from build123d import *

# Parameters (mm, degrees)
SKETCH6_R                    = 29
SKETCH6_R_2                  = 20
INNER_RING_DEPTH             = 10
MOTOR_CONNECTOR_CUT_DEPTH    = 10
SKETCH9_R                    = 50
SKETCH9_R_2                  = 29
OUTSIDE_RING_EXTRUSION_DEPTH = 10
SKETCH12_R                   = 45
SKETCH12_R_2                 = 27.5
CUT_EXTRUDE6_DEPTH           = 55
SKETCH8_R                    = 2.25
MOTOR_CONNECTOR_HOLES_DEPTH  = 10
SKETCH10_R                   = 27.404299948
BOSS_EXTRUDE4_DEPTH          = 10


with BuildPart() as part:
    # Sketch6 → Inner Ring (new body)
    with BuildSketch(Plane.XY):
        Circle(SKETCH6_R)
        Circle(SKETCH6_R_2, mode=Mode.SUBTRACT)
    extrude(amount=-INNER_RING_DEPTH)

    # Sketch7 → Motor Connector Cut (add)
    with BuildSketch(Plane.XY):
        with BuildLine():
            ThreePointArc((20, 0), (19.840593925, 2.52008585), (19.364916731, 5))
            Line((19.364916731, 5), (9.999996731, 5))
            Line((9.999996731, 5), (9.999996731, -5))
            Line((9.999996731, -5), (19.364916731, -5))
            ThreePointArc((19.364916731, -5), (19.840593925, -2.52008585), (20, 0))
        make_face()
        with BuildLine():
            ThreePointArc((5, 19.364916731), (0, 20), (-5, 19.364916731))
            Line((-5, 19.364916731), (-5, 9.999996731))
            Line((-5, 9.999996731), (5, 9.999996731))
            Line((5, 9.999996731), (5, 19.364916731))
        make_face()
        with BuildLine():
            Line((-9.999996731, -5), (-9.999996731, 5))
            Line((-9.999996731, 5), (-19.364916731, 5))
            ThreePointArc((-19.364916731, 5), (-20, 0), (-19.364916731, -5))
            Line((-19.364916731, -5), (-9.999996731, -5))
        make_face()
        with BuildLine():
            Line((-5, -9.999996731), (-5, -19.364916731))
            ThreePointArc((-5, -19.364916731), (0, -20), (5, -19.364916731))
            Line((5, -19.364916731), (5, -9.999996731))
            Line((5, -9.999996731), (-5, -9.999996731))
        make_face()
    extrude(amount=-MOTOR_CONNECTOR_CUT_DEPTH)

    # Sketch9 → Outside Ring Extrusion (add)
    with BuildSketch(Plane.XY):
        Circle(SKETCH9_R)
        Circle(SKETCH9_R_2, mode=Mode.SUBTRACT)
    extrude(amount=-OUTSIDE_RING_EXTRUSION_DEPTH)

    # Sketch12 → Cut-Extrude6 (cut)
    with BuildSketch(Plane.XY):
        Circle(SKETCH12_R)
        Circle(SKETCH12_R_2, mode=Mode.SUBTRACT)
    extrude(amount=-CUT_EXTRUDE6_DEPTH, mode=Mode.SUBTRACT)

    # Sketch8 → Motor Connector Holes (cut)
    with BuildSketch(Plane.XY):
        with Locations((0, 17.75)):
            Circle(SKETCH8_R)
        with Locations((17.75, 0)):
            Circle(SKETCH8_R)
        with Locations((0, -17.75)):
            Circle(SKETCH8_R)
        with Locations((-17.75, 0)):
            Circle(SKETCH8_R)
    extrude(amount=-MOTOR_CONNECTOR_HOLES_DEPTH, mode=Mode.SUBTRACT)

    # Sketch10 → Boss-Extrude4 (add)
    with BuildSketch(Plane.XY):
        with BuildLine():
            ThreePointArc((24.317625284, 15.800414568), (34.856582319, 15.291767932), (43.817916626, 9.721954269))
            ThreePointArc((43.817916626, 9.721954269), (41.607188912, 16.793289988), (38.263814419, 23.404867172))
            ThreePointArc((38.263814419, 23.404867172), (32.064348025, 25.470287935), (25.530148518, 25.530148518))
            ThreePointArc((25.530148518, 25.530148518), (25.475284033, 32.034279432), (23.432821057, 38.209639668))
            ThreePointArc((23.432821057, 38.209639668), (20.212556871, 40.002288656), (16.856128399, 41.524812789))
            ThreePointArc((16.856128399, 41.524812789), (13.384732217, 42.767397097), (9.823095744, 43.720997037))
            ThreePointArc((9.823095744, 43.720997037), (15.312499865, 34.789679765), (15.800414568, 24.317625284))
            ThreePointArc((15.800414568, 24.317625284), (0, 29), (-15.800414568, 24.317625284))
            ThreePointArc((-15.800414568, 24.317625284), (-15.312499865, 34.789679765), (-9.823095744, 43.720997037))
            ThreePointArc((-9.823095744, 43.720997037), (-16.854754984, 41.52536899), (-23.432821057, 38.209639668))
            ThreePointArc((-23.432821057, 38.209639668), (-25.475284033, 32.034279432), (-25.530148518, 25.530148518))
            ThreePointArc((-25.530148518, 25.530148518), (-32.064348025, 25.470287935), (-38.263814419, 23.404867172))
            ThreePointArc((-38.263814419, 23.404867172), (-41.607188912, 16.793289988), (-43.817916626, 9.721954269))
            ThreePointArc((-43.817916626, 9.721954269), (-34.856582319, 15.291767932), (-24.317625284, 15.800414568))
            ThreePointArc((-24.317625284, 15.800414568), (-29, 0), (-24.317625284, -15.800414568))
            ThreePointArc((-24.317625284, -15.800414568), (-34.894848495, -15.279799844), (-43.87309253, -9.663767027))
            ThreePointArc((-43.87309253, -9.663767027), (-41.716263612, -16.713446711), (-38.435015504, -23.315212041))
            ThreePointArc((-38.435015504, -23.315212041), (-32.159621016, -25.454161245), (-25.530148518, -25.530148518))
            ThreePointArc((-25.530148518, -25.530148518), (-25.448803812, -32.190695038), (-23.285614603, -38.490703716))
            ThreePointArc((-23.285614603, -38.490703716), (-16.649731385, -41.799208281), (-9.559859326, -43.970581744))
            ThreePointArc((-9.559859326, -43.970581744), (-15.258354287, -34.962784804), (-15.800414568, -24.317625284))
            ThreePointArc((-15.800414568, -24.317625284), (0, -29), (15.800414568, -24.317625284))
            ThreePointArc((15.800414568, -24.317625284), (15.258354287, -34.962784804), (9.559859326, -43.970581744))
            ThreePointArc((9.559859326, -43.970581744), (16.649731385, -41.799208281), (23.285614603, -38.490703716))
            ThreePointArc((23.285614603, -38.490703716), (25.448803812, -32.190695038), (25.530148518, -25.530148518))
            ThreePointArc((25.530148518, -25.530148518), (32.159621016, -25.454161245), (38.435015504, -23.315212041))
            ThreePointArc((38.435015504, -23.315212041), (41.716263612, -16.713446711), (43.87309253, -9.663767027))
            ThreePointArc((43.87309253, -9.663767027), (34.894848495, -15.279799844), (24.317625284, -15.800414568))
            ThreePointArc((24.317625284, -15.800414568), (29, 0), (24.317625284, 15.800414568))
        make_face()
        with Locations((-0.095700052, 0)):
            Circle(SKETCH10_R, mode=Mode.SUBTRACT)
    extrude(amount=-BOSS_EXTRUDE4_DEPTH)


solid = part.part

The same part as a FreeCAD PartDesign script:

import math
import FreeCAD as App
import Part
import Sketcher

V = App.Vector

doc = App.newDocument("Part")
body = doc.addObject("PartDesign::Body", "Body")
body.AllowCompound = True

# Sketch on XY plane
sketch1 = doc.addObject("Sketcher::SketchObject", "Sketch")
body.addObject(sketch1)
sketch1.AttachmentSupport = (doc.XY_Plane, [""])
sketch1.MapMode = "FlatFace"
sketch1.addGeometry([
    Part.Circle(V(0, 0, 0), V(0, 0, 1), 29),
    Part.Circle(V(0, 0, 0), V(0, 0, 1), 20),
], False)
sketch1.addConstraint([
    Sketcher.Constraint("Coincident", 0, 3, -1, 1),
    Sketcher.Constraint("Coincident", 1, 3, -1, 1),
    Sketcher.Constraint("Diameter", 0, 58.0),
    Sketcher.Constraint("Diameter", 1, 40.0),
])
pad1 = doc.addObject("PartDesign::Pad", "Pad")
body.addObject(pad1)
pad1.Profile = sketch1
pad1.Length = 10
pad1.Reversed = True

# Sketch on XY plane
sketch2 = doc.addObject("Sketcher::SketchObject", "Sketch001")
body.addObject(sketch2)
sketch2.AttachmentSupport = (doc.XY_Plane, [""])
sketch2.MapMode = "FlatFace"
sketch2.addGeometry([
    Part.ArcOfCircle(Part.Circle(V(0, 0, 0), V(0, 0, 1), 20), math.radians(0), math.radians(14.48)),  # 0
    Part.LineSegment(V(19, 5, 0), V(10, 5, 0)),  # 1
    Part.LineSegment(V(10, 5, 0), V(10, -5, 0)),  # 2
    Part.LineSegment(V(10, -5, 0), V(19, -5, 0)),  # 3
    Part.ArcOfCircle(Part.Circle(V(0, 0, 0), V(0, 0, 1), 20), math.radians(-14.48), math.radians(0)),  # 4
    Part.ArcOfCircle(Part.Circle(V(0, 0, 0), V(0, 0, 1), 20), math.radians(76), math.radians(104)),  # 5
    Part.LineSegment(V(-5, 19, 0), V(-5, 10, 0)),  # 6
    Part.LineSegment(V(-5, 10, 0), V(5, 10, 0)),  # 7
    Part.LineSegment(V(5, 10, 0), V(5, 19, 0)),  # 8
    Part.LineSegment(V(-10, -5, 0), V(-10, 5, 0)),  # 9
    Part.LineSegment(V(-10, 5, 0), V(-19, 5, 0)),  # 10
    Part.ArcOfCircle(Part.Circle(V(0, 0, 0), V(0, 0, 1), 20), math.radians(166), math.radians(194)),  # 11
    Part.LineSegment(V(-19, -5, 0), V(-10, -5, 0)),  # 12
    Part.LineSegment(V(-5, -10, 0), V(-5, -19, 0)),  # 13
    Part.ArcOfCircle(Part.Circle(V(0, 0, 0), V(0, 0, 1), 20), math.radians(-104), math.radians(-76)),  # 14
    Part.LineSegment(V(5, -19, 0), V(5, -10, 0)),  # 15
    Part.LineSegment(V(5, -10, 0), V(-5, -10, 0)),  # 16
], False)
sketch2.addConstraint([
    Sketcher.Constraint("Coincident", 0, 2, 1, 1),
    Sketcher.Constraint("Coincident", 1, 2, 2, 1),
    Sketcher.Constraint("Coincident", 2, 2, 3, 1),
    Sketcher.Constraint("Coincident", 3, 2, 4, 1),
    Sketcher.Constraint("Tangent", 4, 2, 0, 1),
    Sketcher.Constraint("Coincident", 5, 2, 6, 1),
    Sketcher.Constraint("Coincident", 6, 2, 7, 1),
    Sketcher.Constraint("Coincident", 7, 2, 8, 1),
    Sketcher.Constraint("Coincident", 8, 2, 5, 1),
    Sketcher.Constraint("Coincident", 9, 2, 10, 1),
    Sketcher.Constraint("Coincident", 10, 2, 11, 1),
    Sketcher.Constraint("Coincident", 11, 2, 12, 1),
    Sketcher.Constraint("Coincident", 12, 2, 9, 1),
    Sketcher.Constraint("Coincident", 13, 2, 14, 1),
    Sketcher.Constraint("Coincident", 14, 2, 15, 1),
    Sketcher.Constraint("Coincident", 15, 2, 16, 1),
    Sketcher.Constraint("Coincident", 16, 2, 13, 1),
    Sketcher.Constraint("Horizontal", 1),
    Sketcher.Constraint("Vertical", 2),
    Sketcher.Constraint("Horizontal", 3),
    Sketcher.Constraint("Vertical", 6),
    Sketcher.Constraint("Horizontal", 7),
    Sketcher.Constraint("Vertical", 8),
    Sketcher.Constraint("Vertical", 9),
    Sketcher.Constraint("Horizontal", 10),
    Sketcher.Constraint("Horizontal", 12),
    Sketcher.Constraint("Vertical", 13),
    Sketcher.Constraint("Vertical", 15),
    Sketcher.Constraint("Horizontal", 16),
    Sketcher.Constraint("Coincident", 0, 3, -1, 1),
    Sketcher.Constraint("Coincident", 5, 3, -1, 1),
    Sketcher.Constraint("Coincident", 11, 3, -1, 1),
    Sketcher.Constraint("Coincident", 14, 3, -1, 1),
    Sketcher.Constraint("Equal", 0, 4),
    Sketcher.Constraint("Equal", 4, 5),
    Sketcher.Constraint("Equal", 5, 11),
    Sketcher.Constraint("Equal", 11, 14),
    Sketcher.Constraint("Symmetric", 2, 2, 9, 2, -1, 1),
    Sketcher.Constraint("Symmetric", 6, 2, 15, 2, -1, 1),
    Sketcher.Constraint("PointOnObject", 4, 2, -1),
    Sketcher.Constraint("Horizontal", 5, 2, 8, 2),
    Sketcher.Constraint("Horizontal", 1, 2, 9, 2),
    Sketcher.Constraint("Horizontal", 3, 2, 11, 2),
    Sketcher.Constraint("Horizontal", 13, 2, 14, 2),
    Sketcher.Constraint("Equal", 16, 2),
    Sketcher.Constraint("Equal", 12, 6),
    Sketcher.Constraint("Radius", 0, 20.0),
    Sketcher.Constraint("DistanceX", 7, 1, 7, 2, 10.0),
    Sketcher.Constraint("DistanceX", 1, 2, 1, 1, 9.36492),
])
pad2 = doc.addObject("PartDesign::Pad", "Pad001")
body.addObject(pad2)
pad2.Profile = sketch2
pad2.Length = 10
pad2.Reversed = True

# Sketch on XY plane
sketch3 = doc.addObject("Sketcher::SketchObject", "Sketch002")
body.addObject(sketch3)
sketch3.AttachmentSupport = (doc.XY_Plane, [""])
sketch3.MapMode = "FlatFace"
sketch3.addGeometry([
    Part.Circle(V(0, 0, 0), V(0, 0, 1), 50),
    Part.Circle(V(0, 0, 0), V(0, 0, 1), 29),
], False)
sketch3.addConstraint([
    Sketcher.Constraint("Coincident", 0, 3, -1, 1),
    Sketcher.Constraint("Coincident", 1, 3, -1, 1),
    Sketcher.Constraint("Diameter", 0, 100.0),
    Sketcher.Constraint("Diameter", 1, 58.0),
])
pad3 = doc.addObject("PartDesign::Pad", "Pad002")
body.addObject(pad3)
pad3.Profile = sketch3
pad3.Length = 10
pad3.Reversed = True

# Sketch on XY plane
sketch4 = doc.addObject("Sketcher::SketchObject", "Sketch003")
body.addObject(sketch4)
sketch4.AttachmentSupport = (doc.XY_Plane, [""])
sketch4.MapMode = "FlatFace"
sketch4.addGeometry([
    Part.Circle(V(0, 0, 0), V(0, 0, 1), 45),
    Part.Circle(V(0, 0, 0), V(0, 0, 1), 28),
], False)
sketch4.addConstraint([
    Sketcher.Constraint("Coincident", 0, 3, -1, 1),
    Sketcher.Constraint("Coincident", 1, 3, -1, 1),
    Sketcher.Constraint("Diameter", 0, 90.0),
    Sketcher.Constraint("Diameter", 1, 55.0),
])
pocket1 = doc.addObject("PartDesign::Pocket", "Pocket")
body.addObject(pocket1)
pocket1.Profile = sketch4
pocket1.Length = 55

# Sketch on XY plane
sketch5 = doc.addObject("Sketcher::SketchObject", "Sketch004")
body.addObject(sketch5)
sketch5.AttachmentSupport = (doc.XY_Plane, [""])
sketch5.MapMode = "FlatFace"
sketch5.addGeometry([
    Part.Circle(V(0, 17.8, 0), V(0, 0, 1), 2.2),
    Part.Circle(V(17.8, 0, 0), V(0, 0, 1), 2.2),
    Part.Circle(V(0, -17.8, 0), V(0, 0, 1), 2.2),
    Part.Circle(V(-17.8, 0, 0), V(0, 0, 1), 2.2),
], False)
sketch5.addConstraint([
    Sketcher.Constraint("Equal", 0, 1),
    Sketcher.Constraint("Equal", 1, 2),
    Sketcher.Constraint("Equal", 2, 3),
    Sketcher.Constraint("Symmetric", 0, 3, 2, 3, -1, 1),
    Sketcher.Constraint("Symmetric", 1, 3, 3, 3, -1, 1),
    Sketcher.Constraint("PointOnObject", 0, 3, -2),
    Sketcher.Constraint("PointOnObject", 1, 3, -1),
    Sketcher.Constraint("Diameter", 0, 4.5),
    Sketcher.Constraint("DistanceY", 2, 3, 0, 3, 35.5),
    Sketcher.Constraint("DistanceX", 3, 3, 1, 3, 35.5),
])
pocket2 = doc.addObject("PartDesign::Pocket", "Pocket001")
body.addObject(pocket2)
pocket2.Profile = sketch5
pocket2.Length = 10

# Sketch on XY plane
sketch6 = doc.addObject("Sketcher::SketchObject", "Sketch005")
body.addObject(sketch6)
sketch6.AttachmentSupport = (doc.XY_Plane, [""])
sketch6.MapMode = "FlatFace"
sketch6.addGeometry([
    Part.ArcOfCircle(Part.Circle(V(29, -5, 0), V(0, 0, 1), 21), math.radians(44), math.radians(102)),  # 0
    Part.ArcOfCircle(Part.Circle(V(0, 0, 0), V(0, 0, 1), 45), math.radians(12.63), math.radians(31.56)),  # 1
    Part.ArcOfCircle(Part.Circle(V(29, 5, 0), V(0, 0, 1), 21), math.radians(63), math.radians(98)),  # 2
    Part.ArcOfCircle(Part.Circle(V(5, 29, 0), V(0, 0, 1), 21), math.radians(-8), math.radians(27)),  # 3
    Part.ArcOfCircle(Part.Circle(V(0, 0, 0), V(0, 0, 1), 45), math.radians(58.54), math.radians(67.95)),  # 4
    Part.ArcOfCircle(Part.Circle(V(0, 0, 0), V(0, 0, 1), 45), math.radians(67.95), math.radians(77.36)),  # 5
    Part.ArcOfCircle(Part.Circle(V(-5, 29, 0), V(0, 0, 1), 21), math.radians(-12), math.radians(46)),  # 6
    Part.ArcOfCircle(Part.Circle(V(0, 0, 0), V(0, 0, 1), 29), math.radians(57), math.radians(123)),  # 7
    Part.ArcOfCircle(Part.Circle(V(5, 29, 0), V(0, 0, 1), 21), math.radians(134), math.radians(192)),  # 8
    Part.ArcOfCircle(Part.Circle(V(0, 0, 0), V(0, 0, 1), 45), math.radians(102.64), math.radians(121.46)),  # 9
    Part.ArcOfCircle(Part.Circle(V(-5, 29, 0), V(0, 0, 1), 21), math.radians(153), math.radians(188)),  # 10
    Part.ArcOfCircle(Part.Circle(V(-29, 5, 0), V(0, 0, 1), 21), math.radians(82), math.radians(117)),  # 11
    Part.ArcOfCircle(Part.Circle(V(0, 0, 0), V(0, 0, 1), 45), math.radians(148.44), math.radians(167.37)),  # 12
    Part.ArcOfCircle(Part.Circle(V(-29, -5, 0), V(0, 0, 1), 21), math.radians(78), math.radians(136)),  # 13
    Part.ArcOfCircle(Part.Circle(V(0, 0, 0), V(0, 0, 1), 29), math.radians(147), math.radians(213)),  # 14
    Part.ArcOfCircle(Part.Circle(V(-29, 5, 0), V(0, 0, 1), 21), math.radians(-137), math.radians(-78)),  # 15
    Part.ArcOfCircle(Part.Circle(V(0, 0, 0), V(0, 0, 1), 45), math.radians(-167.7), math.radians(-148.86)),  # 16
    Part.ArcOfCircle(Part.Circle(V(-29, -5, 0), V(0, 0, 1), 21), math.radians(-118), math.radians(-82)),  # 17
    Part.ArcOfCircle(Part.Circle(V(-5, -29, 0), V(0, 0, 1), 21), math.radians(172), math.radians(208)),  # 18
    Part.ArcOfCircle(Part.Circle(V(0, 0, 0), V(0, 0, 1), 45), math.radians(-121.24), math.radians(-102.29)),  # 19
    Part.ArcOfCircle(Part.Circle(V(5, -29, 0), V(0, 0, 1), 21), math.radians(168), math.radians(227)),  # 20
    Part.ArcOfCircle(Part.Circle(V(0, 0, 0), V(0, 0, 1), 29), math.radians(-123), math.radians(-57)),  # 21
    Part.ArcOfCircle(Part.Circle(V(-5, -29, 0), V(0, 0, 1), 21), math.radians(-47), math.radians(12)),  # 22
    Part.ArcOfCircle(Part.Circle(V(0, 0, 0), V(0, 0, 1), 45), math.radians(-77.71), math.radians(-58.76)),  # 23
    Part.ArcOfCircle(Part.Circle(V(5, -29, 0), V(0, 0, 1), 21), math.radians(-28), math.radians(8)),  # 24
    Part.ArcOfCircle(Part.Circle(V(29, -5, 0), V(0, 0, 1), 21), math.radians(-98), math.radians(-62)),  # 25
    Part.ArcOfCircle(Part.Circle(V(0, 0, 0), V(0, 0, 1), 45), math.radians(-31.14), math.radians(-12.3)),  # 26
    Part.ArcOfCircle(Part.Circle(V(29, 5, 0), V(0, 0, 1), 21), math.radians(-102), math.radians(-43)),  # 27
    Part.ArcOfCircle(Part.Circle(V(0, 0, 0), V(0, 0, 1), 29), math.radians(-33), math.radians(33)),  # 28
    Part.Circle(V(0, 0, 0), V(0, 0, 1), 27),  # 29
], False)
sketch6.addConstraint([
    Sketcher.Constraint("Coincident", 0, 1, 1, 1),
    Sketcher.Constraint("Coincident", 1, 2, 2, 1),
    Sketcher.Constraint("Coincident", 2, 2, 3, 1),
    Sketcher.Constraint("Coincident", 3, 2, 4, 1),
    Sketcher.Constraint("Tangent", 4, 2, 5, 1),
    Sketcher.Constraint("Coincident", 5, 2, 6, 2),
    Sketcher.Constraint("Coincident", 6, 1, 7, 1),
    Sketcher.Constraint("Coincident", 7, 2, 8, 2),
    Sketcher.Constraint("Coincident", 8, 1, 9, 1),
    Sketcher.Constraint("Coincident", 9, 2, 10, 1),
    Sketcher.Constraint("Coincident", 10, 2, 11, 1),
    Sketcher.Constraint("Coincident", 11, 2, 12, 1),
    Sketcher.Constraint("Coincident", 12, 2, 13, 2),
    Sketcher.Constraint("Coincident", 13, 1, 14, 1),
    Sketcher.Constraint("Coincident", 14, 2, 15, 2),
    Sketcher.Constraint("Coincident", 15, 1, 16, 1),
    Sketcher.Constraint("Coincident", 16, 2, 17, 1),
    Sketcher.Constraint("Coincident", 17, 2, 18, 1),
    Sketcher.Constraint("Coincident", 18, 2, 19, 1),
    Sketcher.Constraint("Coincident", 19, 2, 20, 2),
    Sketcher.Constraint("Coincident", 20, 1, 21, 1),
    Sketcher.Constraint("Coincident", 21, 2, 22, 2),
    Sketcher.Constraint("Coincident", 22, 1, 23, 1),
    Sketcher.Constraint("Coincident", 23, 2, 24, 1),
    Sketcher.Constraint("Coincident", 24, 2, 25, 1),
    Sketcher.Constraint("Coincident", 25, 2, 26, 1),
    Sketcher.Constraint("Coincident", 26, 2, 27, 2),
    Sketcher.Constraint("Coincident", 27, 1, 28, 1),
    Sketcher.Constraint("Coincident", 28, 2, 0, 2),
    Sketcher.Constraint("Coincident", 7, 3, -1, 1),
    Sketcher.Constraint("Coincident", 14, 3, -1, 1),
    Sketcher.Constraint("Coincident", 21, 3, -1, 1),
    Sketcher.Constraint("Coincident", 28, 3, -1, 1),
    Sketcher.Constraint("Coincident", 4, 3, 1, 3),
    Sketcher.Constraint("Coincident", 8, 3, 3, 3),
    Sketcher.Constraint("Coincident", 9, 3, 1, 3),
    Sketcher.Constraint("Coincident", 10, 3, 6, 3),
    Sketcher.Constraint("Coincident", 12, 3, 1, 3),
    Sketcher.Constraint("Coincident", 15, 3, 11, 3),
    Sketcher.Constraint("Coincident", 16, 3, 1, 3),
    Sketcher.Constraint("Coincident", 17, 3, 13, 3),
    Sketcher.Constraint("Coincident", 19, 3, 1, 3),
    Sketcher.Constraint("Coincident", 22, 3, 18, 3),
    Sketcher.Constraint("Coincident", 23, 3, 1, 3),
    Sketcher.Constraint("Coincident", 24, 3, 20, 3),
    Sketcher.Constraint("Coincident", 25, 3, 0, 3),
    Sketcher.Constraint("Coincident", 26, 3, 1, 3),
    Sketcher.Constraint("Coincident", 27, 3, 2, 3),
    Sketcher.Constraint("Equal", 0, 2),
    Sketcher.Constraint("Equal", 2, 3),
    Sketcher.Constraint("Equal", 1, 4),
    Sketcher.Constraint("Equal", 4, 5),
    Sketcher.Constraint("Equal", 3, 6),
    Sketcher.Constraint("Equal", 6, 8),
    Sketcher.Constraint("Equal", 5, 9),
    Sketcher.Constraint("Equal", 8, 10),
    Sketcher.Constraint("Equal", 10, 11),
    Sketcher.Constraint("Equal", 9, 12),
    Sketcher.Constraint("Equal", 11, 13),
    Sketcher.Constraint("Equal", 7, 14),
    Sketcher.Constraint("Equal", 13, 15),
    Sketcher.Constraint("Equal", 12, 16),
    Sketcher.Constraint("Equal", 15, 17),
    Sketcher.Constraint("Equal", 17, 18),
    Sketcher.Constraint("Equal", 16, 19),
    Sketcher.Constraint("Equal", 18, 20),
    Sketcher.Constraint("Equal", 14, 21),
    Sketcher.Constraint("Equal", 20, 22),
    Sketcher.Constraint("Equal", 19, 23),
    Sketcher.Constraint("Equal", 22, 24),
    Sketcher.Constraint("Equal", 24, 25),
    Sketcher.Constraint("Equal", 23, 26),
    Sketcher.Constraint("Equal", 25, 27),
    Sketcher.Constraint("Equal", 21, 28),
    Sketcher.Constraint("Symmetric", 0, 3, 11, 3, -1, 1),
    Sketcher.Constraint("Symmetric", 2, 3, 13, 3, -1, 1),
    Sketcher.Constraint("Symmetric", 3, 3, 18, 3, -1, 1),
    Sketcher.Constraint("Symmetric", 6, 3, 20, 3, -1, 1),
    Sketcher.Constraint("Symmetric", 3, 3, 6, 3, -2),
    Sketcher.Constraint("Symmetric", 2, 3, 11, 3, -2),
    Sketcher.Constraint("PointOnObject", 1, 3, -2),
    Sketcher.Constraint("PointOnObject", 29, 3, -1),
    Sketcher.Constraint("Radius", 0, 21.0),
    Sketcher.Constraint("Radius", 7, 29.0),
    Sketcher.Constraint("Diameter", 29, 54.8086),
    Sketcher.Constraint("Radius", 1, 44.9043),
    Sketcher.Constraint("DistanceY", 1, 3, -1, 1, 0.0957),
    Sketcher.Constraint("DistanceX", 29, 3, -1, 1, 0.0957),
    Sketcher.Constraint("DistanceX", 27, 3, 0, 1, 15.210701),
    Sketcher.Constraint("DistanceX", 2, 3, 1, 2, 9.656599),
    Sketcher.Constraint("DistanceX", 11, 3, 7, 2, 12.806801),
    Sketcher.Constraint("DistanceY", 22, 3, 14, 2, 12.806801),
    Sketcher.Constraint("DistanceX", -1, 1, 4, 2, 16.856128),
])
pad4 = doc.addObject("PartDesign::Pad", "Pad003")
body.addObject(pad4)
pad4.Profile = sketch6
pad4.Length = 10
pad4.Reversed = True

doc.recompute()
